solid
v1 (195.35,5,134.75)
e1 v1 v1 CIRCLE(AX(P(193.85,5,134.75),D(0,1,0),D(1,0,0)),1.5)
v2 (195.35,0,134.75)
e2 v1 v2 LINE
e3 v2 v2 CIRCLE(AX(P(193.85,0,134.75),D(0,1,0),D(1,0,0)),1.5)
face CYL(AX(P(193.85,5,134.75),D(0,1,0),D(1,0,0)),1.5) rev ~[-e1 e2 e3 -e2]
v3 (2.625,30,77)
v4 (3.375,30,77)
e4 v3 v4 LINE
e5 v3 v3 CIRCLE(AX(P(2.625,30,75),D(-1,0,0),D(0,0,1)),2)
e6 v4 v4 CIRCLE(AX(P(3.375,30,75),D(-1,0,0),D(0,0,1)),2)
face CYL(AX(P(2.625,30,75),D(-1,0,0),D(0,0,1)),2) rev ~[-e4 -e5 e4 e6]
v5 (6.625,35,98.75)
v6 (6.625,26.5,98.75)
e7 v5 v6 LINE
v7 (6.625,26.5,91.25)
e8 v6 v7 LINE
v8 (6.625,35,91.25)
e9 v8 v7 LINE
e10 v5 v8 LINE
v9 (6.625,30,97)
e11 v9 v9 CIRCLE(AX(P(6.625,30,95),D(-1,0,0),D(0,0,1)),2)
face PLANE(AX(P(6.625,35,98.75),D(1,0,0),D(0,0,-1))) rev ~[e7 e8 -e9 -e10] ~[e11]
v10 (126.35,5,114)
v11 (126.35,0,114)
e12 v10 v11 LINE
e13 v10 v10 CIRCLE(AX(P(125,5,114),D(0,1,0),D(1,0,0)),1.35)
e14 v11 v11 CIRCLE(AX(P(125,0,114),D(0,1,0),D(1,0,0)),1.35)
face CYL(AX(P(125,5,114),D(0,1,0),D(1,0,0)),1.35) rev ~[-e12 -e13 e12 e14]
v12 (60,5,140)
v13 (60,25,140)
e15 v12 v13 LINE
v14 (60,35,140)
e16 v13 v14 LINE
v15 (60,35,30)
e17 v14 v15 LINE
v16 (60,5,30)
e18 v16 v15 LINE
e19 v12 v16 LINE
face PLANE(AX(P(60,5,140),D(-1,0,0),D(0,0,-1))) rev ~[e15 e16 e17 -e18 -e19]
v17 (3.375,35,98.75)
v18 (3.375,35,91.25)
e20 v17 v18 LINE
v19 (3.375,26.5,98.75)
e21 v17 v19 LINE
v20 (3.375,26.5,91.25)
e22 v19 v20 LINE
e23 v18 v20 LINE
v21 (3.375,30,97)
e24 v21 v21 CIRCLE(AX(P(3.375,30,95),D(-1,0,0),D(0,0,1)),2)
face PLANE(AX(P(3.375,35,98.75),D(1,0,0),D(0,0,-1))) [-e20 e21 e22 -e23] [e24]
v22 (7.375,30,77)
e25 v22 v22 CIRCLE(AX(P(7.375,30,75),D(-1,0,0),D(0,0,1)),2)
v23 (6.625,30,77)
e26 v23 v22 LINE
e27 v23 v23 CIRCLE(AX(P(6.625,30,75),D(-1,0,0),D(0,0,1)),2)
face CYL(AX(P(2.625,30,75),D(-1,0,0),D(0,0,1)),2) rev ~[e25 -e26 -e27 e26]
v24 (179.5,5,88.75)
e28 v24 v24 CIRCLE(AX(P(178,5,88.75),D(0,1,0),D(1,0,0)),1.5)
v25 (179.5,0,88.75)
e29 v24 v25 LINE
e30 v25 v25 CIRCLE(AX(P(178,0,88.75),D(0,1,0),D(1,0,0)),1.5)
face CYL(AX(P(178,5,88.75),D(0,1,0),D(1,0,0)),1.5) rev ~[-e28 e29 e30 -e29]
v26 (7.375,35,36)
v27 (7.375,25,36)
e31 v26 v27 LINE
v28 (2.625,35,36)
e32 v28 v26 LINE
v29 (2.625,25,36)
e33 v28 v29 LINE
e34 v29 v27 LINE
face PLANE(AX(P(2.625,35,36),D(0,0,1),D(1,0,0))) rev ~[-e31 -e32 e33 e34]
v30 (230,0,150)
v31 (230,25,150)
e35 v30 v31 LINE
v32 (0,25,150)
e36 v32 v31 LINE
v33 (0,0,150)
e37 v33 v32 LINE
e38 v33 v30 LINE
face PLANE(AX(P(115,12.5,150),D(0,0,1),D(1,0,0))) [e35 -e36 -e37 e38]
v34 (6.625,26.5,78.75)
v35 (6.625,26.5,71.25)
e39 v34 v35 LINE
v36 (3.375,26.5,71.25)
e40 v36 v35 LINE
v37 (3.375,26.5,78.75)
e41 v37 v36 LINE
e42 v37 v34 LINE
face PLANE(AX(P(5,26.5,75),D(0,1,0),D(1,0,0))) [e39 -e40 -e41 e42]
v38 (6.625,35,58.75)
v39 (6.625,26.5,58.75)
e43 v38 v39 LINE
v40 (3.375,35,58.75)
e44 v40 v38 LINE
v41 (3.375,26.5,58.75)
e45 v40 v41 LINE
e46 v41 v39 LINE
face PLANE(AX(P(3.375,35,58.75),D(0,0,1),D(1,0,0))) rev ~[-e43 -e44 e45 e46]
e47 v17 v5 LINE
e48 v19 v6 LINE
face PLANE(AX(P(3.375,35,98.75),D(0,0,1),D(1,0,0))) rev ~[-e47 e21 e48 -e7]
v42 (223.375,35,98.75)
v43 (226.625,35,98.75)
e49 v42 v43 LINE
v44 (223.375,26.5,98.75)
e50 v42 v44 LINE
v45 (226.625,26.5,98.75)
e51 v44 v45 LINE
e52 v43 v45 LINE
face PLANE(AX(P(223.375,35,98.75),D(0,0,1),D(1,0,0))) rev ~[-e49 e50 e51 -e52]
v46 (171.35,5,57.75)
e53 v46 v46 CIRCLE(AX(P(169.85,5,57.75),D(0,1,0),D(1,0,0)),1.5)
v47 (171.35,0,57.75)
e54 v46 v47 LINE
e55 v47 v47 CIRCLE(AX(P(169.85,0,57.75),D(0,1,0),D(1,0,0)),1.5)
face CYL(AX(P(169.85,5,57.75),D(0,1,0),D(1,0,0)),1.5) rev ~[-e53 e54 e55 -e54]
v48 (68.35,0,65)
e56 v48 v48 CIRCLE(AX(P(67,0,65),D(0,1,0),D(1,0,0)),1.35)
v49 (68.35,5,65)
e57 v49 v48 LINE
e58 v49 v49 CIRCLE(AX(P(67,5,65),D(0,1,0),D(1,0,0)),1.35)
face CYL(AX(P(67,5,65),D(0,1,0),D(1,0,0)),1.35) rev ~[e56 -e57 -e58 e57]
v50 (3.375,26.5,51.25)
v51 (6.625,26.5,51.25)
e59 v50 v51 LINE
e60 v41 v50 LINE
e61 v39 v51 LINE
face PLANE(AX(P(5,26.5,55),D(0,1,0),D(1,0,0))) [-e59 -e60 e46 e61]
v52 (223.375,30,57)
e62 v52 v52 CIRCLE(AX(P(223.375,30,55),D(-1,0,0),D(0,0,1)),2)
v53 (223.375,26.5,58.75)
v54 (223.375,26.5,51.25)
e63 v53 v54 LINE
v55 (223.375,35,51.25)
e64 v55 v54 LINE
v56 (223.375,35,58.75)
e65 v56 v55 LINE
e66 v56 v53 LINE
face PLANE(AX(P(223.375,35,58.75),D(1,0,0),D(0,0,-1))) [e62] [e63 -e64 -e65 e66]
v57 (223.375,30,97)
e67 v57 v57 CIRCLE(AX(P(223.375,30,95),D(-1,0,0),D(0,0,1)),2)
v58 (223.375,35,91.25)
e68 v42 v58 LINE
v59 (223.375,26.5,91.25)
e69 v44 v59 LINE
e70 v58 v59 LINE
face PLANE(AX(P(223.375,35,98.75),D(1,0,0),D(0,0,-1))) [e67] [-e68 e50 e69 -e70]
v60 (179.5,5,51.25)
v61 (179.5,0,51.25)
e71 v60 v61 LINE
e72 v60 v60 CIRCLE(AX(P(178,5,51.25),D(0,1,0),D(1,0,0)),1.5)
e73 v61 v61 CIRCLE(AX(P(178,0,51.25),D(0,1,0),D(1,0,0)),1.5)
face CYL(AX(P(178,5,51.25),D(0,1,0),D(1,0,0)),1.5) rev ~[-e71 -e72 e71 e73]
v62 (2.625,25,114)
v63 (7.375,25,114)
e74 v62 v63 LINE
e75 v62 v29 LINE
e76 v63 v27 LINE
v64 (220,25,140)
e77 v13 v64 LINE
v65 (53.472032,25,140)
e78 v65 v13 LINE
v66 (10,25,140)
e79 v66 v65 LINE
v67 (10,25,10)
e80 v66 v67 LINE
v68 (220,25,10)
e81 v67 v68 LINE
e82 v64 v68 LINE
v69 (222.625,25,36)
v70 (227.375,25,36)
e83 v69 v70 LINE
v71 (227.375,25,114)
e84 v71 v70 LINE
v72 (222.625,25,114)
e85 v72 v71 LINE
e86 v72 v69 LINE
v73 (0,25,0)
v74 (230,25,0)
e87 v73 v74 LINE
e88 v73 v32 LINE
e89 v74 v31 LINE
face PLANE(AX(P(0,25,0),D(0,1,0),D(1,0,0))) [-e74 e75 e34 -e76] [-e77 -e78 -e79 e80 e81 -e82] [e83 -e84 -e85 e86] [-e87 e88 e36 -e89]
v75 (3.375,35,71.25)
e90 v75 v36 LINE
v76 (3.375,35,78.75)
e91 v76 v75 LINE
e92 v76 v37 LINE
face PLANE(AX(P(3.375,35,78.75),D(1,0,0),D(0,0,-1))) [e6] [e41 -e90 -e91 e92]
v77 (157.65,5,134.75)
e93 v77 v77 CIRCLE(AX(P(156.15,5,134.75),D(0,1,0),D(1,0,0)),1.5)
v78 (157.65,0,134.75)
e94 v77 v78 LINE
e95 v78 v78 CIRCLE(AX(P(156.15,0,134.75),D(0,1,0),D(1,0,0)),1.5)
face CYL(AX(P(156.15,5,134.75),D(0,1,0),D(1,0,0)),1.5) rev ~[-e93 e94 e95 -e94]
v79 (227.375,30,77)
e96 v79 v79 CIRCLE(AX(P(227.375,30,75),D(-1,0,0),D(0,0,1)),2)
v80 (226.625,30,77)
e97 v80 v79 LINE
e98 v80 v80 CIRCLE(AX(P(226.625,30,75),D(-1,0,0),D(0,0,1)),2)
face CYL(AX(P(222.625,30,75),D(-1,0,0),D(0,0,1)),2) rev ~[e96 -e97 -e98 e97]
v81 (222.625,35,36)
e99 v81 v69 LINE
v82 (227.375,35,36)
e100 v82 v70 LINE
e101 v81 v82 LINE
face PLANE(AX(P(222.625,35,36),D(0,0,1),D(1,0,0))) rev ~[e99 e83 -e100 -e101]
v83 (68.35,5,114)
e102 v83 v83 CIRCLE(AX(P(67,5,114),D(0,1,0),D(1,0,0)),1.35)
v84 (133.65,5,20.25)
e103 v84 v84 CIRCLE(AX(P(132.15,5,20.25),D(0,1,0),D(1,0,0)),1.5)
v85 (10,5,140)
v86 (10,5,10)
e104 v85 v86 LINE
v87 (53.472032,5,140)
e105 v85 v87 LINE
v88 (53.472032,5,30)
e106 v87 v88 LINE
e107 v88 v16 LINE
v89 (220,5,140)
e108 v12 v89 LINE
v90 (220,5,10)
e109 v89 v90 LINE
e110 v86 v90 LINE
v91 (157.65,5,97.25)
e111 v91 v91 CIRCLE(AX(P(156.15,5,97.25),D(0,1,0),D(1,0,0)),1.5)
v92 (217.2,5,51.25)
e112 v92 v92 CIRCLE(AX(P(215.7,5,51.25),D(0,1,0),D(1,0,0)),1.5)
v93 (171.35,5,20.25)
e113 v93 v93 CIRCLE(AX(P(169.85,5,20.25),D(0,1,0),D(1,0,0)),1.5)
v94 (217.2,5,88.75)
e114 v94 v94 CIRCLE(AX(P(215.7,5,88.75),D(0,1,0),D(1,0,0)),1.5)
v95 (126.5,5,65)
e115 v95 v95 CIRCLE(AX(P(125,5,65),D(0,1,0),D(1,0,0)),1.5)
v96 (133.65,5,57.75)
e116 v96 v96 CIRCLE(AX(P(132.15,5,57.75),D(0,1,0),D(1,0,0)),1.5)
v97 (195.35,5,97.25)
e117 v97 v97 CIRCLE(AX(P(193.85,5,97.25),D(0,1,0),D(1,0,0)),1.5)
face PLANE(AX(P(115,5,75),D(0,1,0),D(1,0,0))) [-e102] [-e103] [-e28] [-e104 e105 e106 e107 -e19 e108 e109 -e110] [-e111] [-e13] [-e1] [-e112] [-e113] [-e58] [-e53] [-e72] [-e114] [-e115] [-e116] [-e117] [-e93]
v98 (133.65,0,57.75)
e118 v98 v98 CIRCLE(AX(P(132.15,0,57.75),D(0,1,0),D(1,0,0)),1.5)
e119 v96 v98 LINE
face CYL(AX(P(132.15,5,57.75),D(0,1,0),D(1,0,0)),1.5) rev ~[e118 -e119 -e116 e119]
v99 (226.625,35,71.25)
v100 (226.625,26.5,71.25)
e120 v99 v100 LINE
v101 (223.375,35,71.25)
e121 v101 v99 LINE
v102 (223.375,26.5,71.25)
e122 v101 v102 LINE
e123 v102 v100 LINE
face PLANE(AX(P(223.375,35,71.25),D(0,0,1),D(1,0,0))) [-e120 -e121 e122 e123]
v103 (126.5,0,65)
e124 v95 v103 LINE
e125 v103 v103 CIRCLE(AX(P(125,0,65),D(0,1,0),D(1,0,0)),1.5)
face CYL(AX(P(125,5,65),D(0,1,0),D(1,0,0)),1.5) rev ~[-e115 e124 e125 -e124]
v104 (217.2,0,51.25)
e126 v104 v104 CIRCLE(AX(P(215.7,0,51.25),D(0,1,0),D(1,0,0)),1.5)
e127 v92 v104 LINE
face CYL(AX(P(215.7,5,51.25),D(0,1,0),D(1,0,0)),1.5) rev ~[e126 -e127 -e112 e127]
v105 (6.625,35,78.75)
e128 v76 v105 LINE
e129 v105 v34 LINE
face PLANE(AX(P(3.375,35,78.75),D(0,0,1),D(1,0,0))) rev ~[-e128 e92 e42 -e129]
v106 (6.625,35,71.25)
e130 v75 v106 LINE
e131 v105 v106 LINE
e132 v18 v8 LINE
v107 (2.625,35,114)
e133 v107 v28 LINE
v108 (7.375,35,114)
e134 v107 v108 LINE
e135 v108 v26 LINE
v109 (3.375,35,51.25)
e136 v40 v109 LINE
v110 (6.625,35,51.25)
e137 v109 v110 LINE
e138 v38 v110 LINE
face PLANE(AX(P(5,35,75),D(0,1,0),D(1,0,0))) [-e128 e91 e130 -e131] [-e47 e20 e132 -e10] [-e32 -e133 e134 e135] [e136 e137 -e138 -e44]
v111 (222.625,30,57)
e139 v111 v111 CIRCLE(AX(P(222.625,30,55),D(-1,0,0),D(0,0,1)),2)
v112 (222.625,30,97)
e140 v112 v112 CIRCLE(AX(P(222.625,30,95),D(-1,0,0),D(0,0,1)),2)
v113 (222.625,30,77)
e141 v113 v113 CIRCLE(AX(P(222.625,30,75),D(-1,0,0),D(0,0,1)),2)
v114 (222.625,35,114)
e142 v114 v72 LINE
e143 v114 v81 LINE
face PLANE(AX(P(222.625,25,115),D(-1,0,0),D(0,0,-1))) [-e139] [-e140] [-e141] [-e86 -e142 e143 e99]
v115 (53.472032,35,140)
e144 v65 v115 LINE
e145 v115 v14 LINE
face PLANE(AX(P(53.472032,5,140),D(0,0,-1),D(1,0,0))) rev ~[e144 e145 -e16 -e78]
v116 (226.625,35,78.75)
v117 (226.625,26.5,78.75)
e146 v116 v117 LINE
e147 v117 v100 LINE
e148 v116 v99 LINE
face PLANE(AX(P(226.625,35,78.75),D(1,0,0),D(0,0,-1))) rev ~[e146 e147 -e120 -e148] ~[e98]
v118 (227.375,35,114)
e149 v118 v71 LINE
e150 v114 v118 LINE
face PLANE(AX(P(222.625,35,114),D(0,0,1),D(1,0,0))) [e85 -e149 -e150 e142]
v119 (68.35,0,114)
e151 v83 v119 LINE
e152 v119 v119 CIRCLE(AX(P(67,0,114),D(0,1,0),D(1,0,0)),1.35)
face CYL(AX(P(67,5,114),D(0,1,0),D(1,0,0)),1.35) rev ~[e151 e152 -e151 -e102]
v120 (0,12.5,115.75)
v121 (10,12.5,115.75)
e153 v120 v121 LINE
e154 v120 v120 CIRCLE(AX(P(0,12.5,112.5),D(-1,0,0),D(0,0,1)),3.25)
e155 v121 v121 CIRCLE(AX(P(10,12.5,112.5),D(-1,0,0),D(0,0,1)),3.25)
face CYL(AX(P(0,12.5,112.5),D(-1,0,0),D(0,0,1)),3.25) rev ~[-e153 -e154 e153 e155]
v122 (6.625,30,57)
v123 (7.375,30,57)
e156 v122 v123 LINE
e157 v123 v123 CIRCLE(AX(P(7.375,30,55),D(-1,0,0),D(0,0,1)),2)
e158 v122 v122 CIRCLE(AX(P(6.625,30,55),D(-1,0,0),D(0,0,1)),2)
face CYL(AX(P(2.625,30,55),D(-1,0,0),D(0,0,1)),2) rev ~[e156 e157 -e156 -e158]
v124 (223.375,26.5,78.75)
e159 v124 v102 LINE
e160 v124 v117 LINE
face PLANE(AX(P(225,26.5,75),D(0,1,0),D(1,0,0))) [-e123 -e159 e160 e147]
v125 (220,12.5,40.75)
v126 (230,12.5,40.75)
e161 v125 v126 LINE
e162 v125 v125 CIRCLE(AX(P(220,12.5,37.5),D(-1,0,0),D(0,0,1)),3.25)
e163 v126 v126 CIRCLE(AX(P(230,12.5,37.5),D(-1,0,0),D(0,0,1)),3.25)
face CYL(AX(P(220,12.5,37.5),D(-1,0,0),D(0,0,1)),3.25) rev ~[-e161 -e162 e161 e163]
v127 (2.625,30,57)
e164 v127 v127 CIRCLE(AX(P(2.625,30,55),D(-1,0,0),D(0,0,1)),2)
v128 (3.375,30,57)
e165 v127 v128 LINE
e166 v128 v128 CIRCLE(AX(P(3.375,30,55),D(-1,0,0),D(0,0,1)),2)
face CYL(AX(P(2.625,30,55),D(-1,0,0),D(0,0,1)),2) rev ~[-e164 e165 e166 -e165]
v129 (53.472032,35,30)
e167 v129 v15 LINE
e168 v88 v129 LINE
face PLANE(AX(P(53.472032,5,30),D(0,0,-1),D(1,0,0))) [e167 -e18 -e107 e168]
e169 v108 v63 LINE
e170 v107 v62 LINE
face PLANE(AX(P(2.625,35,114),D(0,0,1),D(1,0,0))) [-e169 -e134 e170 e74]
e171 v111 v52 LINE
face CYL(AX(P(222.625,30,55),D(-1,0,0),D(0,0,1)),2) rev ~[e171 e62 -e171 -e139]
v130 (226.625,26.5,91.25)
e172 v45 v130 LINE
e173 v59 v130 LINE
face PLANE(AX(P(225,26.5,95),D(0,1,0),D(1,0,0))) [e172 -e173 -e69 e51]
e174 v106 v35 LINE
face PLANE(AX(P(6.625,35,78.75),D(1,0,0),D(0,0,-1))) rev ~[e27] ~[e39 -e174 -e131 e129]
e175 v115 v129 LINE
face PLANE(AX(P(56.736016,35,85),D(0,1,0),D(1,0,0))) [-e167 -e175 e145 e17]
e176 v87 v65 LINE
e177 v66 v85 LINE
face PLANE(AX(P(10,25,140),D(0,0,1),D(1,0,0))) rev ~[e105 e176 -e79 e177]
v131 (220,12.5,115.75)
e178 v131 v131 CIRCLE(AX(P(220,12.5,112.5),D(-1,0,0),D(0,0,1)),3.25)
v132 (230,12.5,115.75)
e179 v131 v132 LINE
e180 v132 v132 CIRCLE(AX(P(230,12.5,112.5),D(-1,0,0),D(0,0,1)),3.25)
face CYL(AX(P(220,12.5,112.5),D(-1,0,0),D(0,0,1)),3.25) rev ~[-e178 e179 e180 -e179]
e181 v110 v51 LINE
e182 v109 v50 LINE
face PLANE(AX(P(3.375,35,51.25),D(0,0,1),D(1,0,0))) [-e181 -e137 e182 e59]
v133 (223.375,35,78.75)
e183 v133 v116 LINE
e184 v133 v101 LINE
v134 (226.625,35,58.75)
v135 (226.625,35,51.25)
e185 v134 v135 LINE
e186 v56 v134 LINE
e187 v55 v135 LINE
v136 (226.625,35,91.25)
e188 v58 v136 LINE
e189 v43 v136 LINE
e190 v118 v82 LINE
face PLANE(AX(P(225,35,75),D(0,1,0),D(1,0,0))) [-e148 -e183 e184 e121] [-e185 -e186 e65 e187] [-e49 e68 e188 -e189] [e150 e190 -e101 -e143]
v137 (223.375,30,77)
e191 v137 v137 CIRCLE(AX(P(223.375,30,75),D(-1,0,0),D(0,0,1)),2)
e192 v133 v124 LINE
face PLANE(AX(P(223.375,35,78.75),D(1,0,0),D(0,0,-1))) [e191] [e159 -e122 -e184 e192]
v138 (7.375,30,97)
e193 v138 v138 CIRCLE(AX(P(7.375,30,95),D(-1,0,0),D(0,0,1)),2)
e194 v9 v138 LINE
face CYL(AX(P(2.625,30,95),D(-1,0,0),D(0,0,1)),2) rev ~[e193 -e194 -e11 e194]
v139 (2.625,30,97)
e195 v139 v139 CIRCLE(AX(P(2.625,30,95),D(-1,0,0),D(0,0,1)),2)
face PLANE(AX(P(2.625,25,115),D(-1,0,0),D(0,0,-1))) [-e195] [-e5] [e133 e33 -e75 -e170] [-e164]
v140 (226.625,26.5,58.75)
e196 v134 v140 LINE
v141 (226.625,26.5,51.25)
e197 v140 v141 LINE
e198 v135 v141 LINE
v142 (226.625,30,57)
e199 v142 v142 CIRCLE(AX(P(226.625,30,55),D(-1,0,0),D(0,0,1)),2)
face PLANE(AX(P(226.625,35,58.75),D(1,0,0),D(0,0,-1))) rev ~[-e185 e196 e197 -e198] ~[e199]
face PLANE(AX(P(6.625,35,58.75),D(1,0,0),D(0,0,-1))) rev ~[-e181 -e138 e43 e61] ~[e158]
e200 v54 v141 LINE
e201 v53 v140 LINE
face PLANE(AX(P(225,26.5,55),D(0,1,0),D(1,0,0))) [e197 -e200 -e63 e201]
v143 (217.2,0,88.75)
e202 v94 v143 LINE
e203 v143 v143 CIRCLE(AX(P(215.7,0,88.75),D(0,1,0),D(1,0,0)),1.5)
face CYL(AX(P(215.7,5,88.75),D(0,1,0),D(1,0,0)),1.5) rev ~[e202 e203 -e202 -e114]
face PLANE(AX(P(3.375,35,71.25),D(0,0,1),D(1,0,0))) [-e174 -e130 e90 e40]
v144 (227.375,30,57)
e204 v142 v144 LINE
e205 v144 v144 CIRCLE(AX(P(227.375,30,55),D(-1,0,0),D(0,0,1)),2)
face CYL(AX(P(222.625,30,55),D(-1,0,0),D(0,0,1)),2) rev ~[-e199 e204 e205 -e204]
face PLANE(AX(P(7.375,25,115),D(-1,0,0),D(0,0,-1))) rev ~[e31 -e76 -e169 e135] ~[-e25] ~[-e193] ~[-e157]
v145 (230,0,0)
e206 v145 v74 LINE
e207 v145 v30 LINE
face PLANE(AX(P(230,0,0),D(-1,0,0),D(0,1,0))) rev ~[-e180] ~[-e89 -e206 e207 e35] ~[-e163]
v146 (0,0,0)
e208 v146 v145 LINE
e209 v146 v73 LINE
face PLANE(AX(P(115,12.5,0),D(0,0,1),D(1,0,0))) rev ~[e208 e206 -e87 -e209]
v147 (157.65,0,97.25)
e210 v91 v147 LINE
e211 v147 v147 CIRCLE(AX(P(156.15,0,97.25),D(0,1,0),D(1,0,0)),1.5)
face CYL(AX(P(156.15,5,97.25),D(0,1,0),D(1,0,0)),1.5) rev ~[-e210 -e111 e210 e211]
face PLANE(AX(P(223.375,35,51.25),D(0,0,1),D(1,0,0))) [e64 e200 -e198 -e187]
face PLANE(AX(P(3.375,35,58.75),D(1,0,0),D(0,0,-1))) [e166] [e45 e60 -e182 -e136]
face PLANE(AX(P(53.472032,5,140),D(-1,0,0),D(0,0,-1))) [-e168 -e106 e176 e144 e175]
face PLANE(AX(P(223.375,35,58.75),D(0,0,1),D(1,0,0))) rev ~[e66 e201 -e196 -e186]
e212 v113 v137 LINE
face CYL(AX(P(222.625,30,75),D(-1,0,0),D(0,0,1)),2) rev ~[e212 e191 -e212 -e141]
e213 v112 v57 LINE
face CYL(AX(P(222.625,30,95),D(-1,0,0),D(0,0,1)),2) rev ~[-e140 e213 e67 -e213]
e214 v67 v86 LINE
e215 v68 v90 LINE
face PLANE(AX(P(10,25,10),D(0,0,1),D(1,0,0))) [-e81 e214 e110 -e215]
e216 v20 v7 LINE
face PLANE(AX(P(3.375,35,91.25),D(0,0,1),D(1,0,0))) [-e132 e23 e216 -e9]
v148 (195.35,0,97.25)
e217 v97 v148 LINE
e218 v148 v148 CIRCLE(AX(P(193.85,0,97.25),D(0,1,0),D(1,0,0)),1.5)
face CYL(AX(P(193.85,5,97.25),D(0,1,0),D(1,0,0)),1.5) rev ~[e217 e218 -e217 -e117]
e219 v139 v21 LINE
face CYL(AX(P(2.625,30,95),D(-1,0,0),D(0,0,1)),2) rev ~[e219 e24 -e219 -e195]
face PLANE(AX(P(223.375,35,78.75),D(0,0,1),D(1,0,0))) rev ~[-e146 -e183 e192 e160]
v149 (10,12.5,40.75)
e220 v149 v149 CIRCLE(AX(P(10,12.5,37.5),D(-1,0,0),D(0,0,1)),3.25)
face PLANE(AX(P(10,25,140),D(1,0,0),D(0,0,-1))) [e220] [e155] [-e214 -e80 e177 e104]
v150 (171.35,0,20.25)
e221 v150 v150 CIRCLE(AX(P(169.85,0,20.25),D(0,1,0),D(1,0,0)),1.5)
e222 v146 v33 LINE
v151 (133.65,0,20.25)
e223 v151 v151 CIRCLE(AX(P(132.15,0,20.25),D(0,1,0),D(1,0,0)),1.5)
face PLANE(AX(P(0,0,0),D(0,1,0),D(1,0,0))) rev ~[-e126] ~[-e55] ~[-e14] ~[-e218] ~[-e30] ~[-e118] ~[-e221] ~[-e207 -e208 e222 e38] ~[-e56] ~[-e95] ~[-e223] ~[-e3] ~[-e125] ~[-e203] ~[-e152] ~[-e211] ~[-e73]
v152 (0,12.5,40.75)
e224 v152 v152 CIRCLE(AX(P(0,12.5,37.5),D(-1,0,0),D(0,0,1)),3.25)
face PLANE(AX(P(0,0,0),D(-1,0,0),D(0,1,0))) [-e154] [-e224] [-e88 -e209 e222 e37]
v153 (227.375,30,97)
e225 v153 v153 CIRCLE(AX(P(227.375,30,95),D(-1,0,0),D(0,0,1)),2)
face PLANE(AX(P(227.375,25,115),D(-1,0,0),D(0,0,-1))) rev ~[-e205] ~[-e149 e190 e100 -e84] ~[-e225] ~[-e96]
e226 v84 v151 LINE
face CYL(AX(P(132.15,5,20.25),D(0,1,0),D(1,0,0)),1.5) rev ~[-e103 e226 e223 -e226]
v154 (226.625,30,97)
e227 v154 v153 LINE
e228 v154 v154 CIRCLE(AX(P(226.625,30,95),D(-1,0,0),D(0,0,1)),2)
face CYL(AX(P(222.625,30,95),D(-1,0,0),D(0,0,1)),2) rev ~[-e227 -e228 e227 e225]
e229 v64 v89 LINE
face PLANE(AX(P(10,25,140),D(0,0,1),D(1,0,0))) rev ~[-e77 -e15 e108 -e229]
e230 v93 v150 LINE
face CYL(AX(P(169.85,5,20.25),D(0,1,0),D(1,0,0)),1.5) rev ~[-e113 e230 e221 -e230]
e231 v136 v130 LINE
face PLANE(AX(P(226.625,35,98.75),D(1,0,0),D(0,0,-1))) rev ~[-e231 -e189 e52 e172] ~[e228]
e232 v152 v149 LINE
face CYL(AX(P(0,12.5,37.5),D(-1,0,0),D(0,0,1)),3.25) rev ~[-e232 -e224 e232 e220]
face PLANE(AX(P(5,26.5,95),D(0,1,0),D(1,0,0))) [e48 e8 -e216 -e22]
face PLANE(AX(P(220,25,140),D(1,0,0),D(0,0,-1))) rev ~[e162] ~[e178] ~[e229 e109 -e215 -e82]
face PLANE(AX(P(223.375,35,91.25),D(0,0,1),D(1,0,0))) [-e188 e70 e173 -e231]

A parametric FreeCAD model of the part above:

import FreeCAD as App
import Part
import Sketcher

V = App.Vector
Q = App.Units.Quantity


def add_polygon(sketch, points):
    """Adds a closed chain of lines whose ends are joined by coincident constraints."""
    first, n = sketch.GeometryCount, len(points)
    for a, b in zip(points, points[1:] + points[:1]):
        sketch.addGeometry(Part.LineSegment(App.Vector(*a, 0), App.Vector(*b, 0)), False)
    for i in range(n):
        sketch.addConstraint(Sketcher.Constraint("Coincident", first + i, 2, first + (i + 1) % n, 1))

doc = App.newDocument("Part")
body = doc.addObject("PartDesign::Body", "Body")

# Sketch on XY plane
sketch1 = body.newObject("Sketcher::SketchObject", "Sketch")
sketch1.AttachmentSupport = (doc.getObject("XY_Plane"), [""])
sketch1.MapMode = "FlatFace"
add_polygon(sketch1, [(0, 25), (0, 0), (230, 0), (230, 25)])  # lines 0-3
sketch1.addConstraint([
    Sketcher.Constraint("Vertical", 0),
    Sketcher.Constraint("Horizontal", 1),
    Sketcher.Constraint("Vertical", 2),
    Sketcher.Constraint("Horizontal", 3),
    Sketcher.Constraint("Coincident", 0, 2, -1, 1),
    Sketcher.Constraint("DistanceX", 1, 1, 1, 2, Q("230 mm")),
    Sketcher.Constraint("DistanceY", 0, 2, 0, 1, Q("25 mm")),
])
pad1 = body.newObject("PartDesign::Pad", "Pad")
pad1.Profile = sketch1
pad1.Length = 150

# Sketch on XZ plane
sketch2 = body.newObject("Sketcher::SketchObject", "Sketch001")
sketch2.AttachmentSupport = (doc.getObject("XZ_Plane"), [""])
sketch2.MapMode = "FlatFace"
sketch2.AttachmentOffset = App.Placement(V(0, 0, -25), App.Rotation())
add_polygon(sketch2, [(10, 10), (10, 140), (220, 140), (220, 10)])  # lines 0-3
sketch2.addConstraint([
    Sketcher.Constraint("Vertical", 0),
    Sketcher.Constraint("Horizontal", 1),
    Sketcher.Constraint("Vertical", 2),
    Sketcher.Constraint("Horizontal", 3),
    Sketcher.Constraint("DistanceX", 1, 1, 1, 2, Q("210 mm")),
    Sketcher.Constraint("DistanceY", 0, 1, 0, 2, Q("130 mm")),
    Sketcher.Constraint("DistanceX", -1, 1, 0, 2, Q("10 mm")),
    Sketcher.Constraint("DistanceY", -1, 1, 0, 2, Q("140 mm")),
])
pocket1 = body.newObject("PartDesign::Pocket", "Pocket")
pocket1.Profile = sketch2
pocket1.Length = 20
pocket1.Reversed = True

# Sketch on XZ plane
sketch3 = body.newObject("Sketcher::SketchObject", "Sketch002")
sketch3.AttachmentSupport = (doc.getObject("XZ_Plane"), [""])
sketch3.MapMode = "FlatFace"
sketch3.AttachmentOffset = App.Placement(V(0, 0, -5), App.Rotation())
add_polygon(sketch3, [(53.472032, 30), (53.472032, 140), (60, 140), (60, 30)])  # lines 0-3
sketch3.addConstraint([
    Sketcher.Constraint("Vertical", 0),
    Sketcher.Constraint("Horizontal", 1),
    Sketcher.Constraint("Vertical", 2),
    Sketcher.Constraint("Horizontal", 3),
    Sketcher.Constraint("DistanceY", 0, 1, 0, 2, Q("110 mm")),
    Sketcher.Constraint("DistanceY", -1, 1, 0, 2, Q("140 mm")),
    Sketcher.Constraint("DistanceX", -1, 1, 1, 2, Q("60 mm")),
    Sketcher.Constraint("DistanceX", 1, 1, 1, 2, Q("6.527968 mm")),
])
pad2 = body.newObject("PartDesign::Pad", "Pad001")
pad2.Profile = sketch3
pad2.Length = 30
pad2.Reversed = True

# Sketch on XZ plane
sketch4 = body.newObject("Sketcher::SketchObject", "Sketch003")
sketch4.AttachmentSupport = (doc.getObject("XZ_Plane"), [""])
sketch4.MapMode = "FlatFace"
sketch4.AttachmentOffset = App.Placement(V(0, 0, -5), App.Rotation())
sketch4.addGeometry(Part.Circle(V(67, 65, 0), V(0, 0, 1), 1.35), False)
sketch4.addConstraint([
    Sketcher.Constraint("Diameter", 0, Q("2.7 mm")),
    Sketcher.Constraint("DistanceX", -1, 1, 0, 3, Q("67 mm")),
    Sketcher.Constraint("DistanceY", -1, 1, 0, 3, Q("65 mm")),
])
pocket2 = body.newObject("PartDesign::Pocket", "Pocket001")
pocket2.Profile = sketch4
pocket2.Type = "UpToFirst"
pocket2.Reversed = True

# Sketch on XZ plane
sketch5 = body.newObject("Sketcher::SketchObject", "Sketch004")
sketch5.AttachmentSupport = (doc.getObject("XZ_Plane"), [""])
sketch5.MapMode = "FlatFace"
sketch5.AttachmentOffset = App.Placement(V(0, 0, -5), App.Rotation())
sketch5.addGeometry(Part.Circle(V(67, 114, 0), V(0, 0, 1), 1.35), False)
sketch5.addConstraint([
    Sketcher.Constraint("Diameter", 0, Q("2.7 mm")),
    Sketcher.Constraint("DistanceX", -1, 1, 0, 3, Q("67 mm")),
    Sketcher.Constraint("DistanceY", -1, 1, 0, 3, Q("114 mm")),
])
pocket3 = body.newObject("PartDesign::Pocket", "Pocket002")
pocket3.Profile = sketch5
pocket3.Type = "UpToFirst"
pocket3.Reversed = True

# Sketch on XZ plane
sketch6 = body.newObject("Sketcher::SketchObject", "Sketch005")
sketch6.AttachmentSupport = (doc.getObject("XZ_Plane"), [""])
sketch6.MapMode = "FlatFace"
sketch6.AttachmentOffset = App.Placement(V(0, 0, -5), App.Rotation())
sketch6.addGeometry(Part.Circle(V(125, 65, 0), V(0, 0, 1), 1.5), False)
sketch6.addConstraint([
    Sketcher.Constraint("Diameter", 0, Q("3 mm")),
    Sketcher.Constraint("DistanceX", -1, 1, 0, 3, Q("125 mm")),
    Sketcher.Constraint("DistanceY", -1, 1, 0, 3, Q("65 mm")),
])
pocket4 = body.newObject("PartDesign::Pocket", "Pocket003")
pocket4.Profile = sketch6
pocket4.Type = "UpToFirst"
pocket4.Reversed = True

# Sketch on XZ plane
sketch7 = body.newObject("Sketcher::SketchObject", "Sketch006")
sketch7.AttachmentSupport = (doc.getObject("XZ_Plane"), [""])
sketch7.MapMode = "FlatFace"
sketch7.AttachmentOffset = App.Placement(V(0, 0, -5), App.Rotation())
sketch7.addGeometry(Part.Circle(V(125, 114, 0), V(0, 0, 1), 1.35), False)
sketch7.addConstraint([
    Sketcher.Constraint("Diameter", 0, Q("2.7 mm")),
    Sketcher.Constraint("DistanceX", -1, 1, 0, 3, Q("125 mm")),
    Sketcher.Constraint("DistanceY", -1, 1, 0, 3, Q("114 mm")),
])
pocket5 = body.newObject("PartDesign::Pocket", "Pocket004")
pocket5.Profile = sketch7
pocket5.Type = "UpToFirst"
pocket5.Reversed = True

# Sketch on XZ plane
sketch8 = body.newObject("Sketcher::SketchObject", "Sketch007")
sketch8.AttachmentSupport = (doc.getObject("XZ_Plane"), [""])
sketch8.MapMode = "FlatFace"
sketch8.AttachmentOffset = App.Placement(V(0, 0, -5), App.Rotation())
sketch8.addGeometry([
    Part.Circle(V(132.15, 20.25, 0), V(0, 0, 1), 1.5),  # 0
    Part.Circle(V(169.85, 20.25, 0), V(0, 0, 1), 1.5),  # 1
    Part.Circle(V(169.85, 57.75, 0), V(0, 0, 1), 1.5),  # 2
    Part.Circle(V(132.15, 57.75, 0), V(0, 0, 1), 1.5),  # 3
    Part.Circle(V(178, 51.25, 0), V(0, 0, 1), 1.5),  # 4
    Part.Circle(V(215.7, 51.25, 0), V(0, 0, 1), 1.5),  # 5
    Part.Circle(V(215.7, 88.75, 0), V(0, 0, 1), 1.5),  # 6
    Part.Circle(V(178, 88.75, 0), V(0, 0, 1), 1.5),  # 7
    Part.Circle(V(156.15, 97.25, 0), V(0, 0, 1), 1.5),  # 8
    Part.Circle(V(193.85, 97.25, 0), V(0, 0, 1), 1.5),  # 9
    Part.Circle(V(193.85, 134.75, 0), V(0, 0, 1), 1.5),  # 10
    Part.Circle(V(156.15, 134.75, 0), V(0, 0, 1), 1.5),  # 11
], False)
sketch8.addConstraint([
    Sketcher.Constraint("Equal", 0, 1),
    Sketcher.Constraint("Equal", 1, 2),
    Sketcher.Constraint("Equal", 2, 3),
    Sketcher.Constraint("Equal", 3, 4),
    Sketcher.Constraint("Equal", 4, 5),
    Sketcher.Constraint("Equal", 5, 6),
    Sketcher.Constraint("Equal", 6, 7),
    Sketcher.Constraint("Equal", 7, 8),
    Sketcher.Constraint("Equal", 8, 9),
    Sketcher.Constraint("Equal", 9, 10),
    Sketcher.Constraint("Equal", 10, 11),
    Sketcher.Constraint("Horizontal", 0, 3, 1, 3),
    Sketcher.Constraint("Horizontal", 2, 3, 3, 3),
    Sketcher.Constraint("Horizontal", 4, 3, 5, 3),
    Sketcher.Constraint("Horizontal", 6, 3, 7, 3),
    Sketcher.Constraint("Horizontal", 8, 3, 9, 3),
    Sketcher.Constraint("Horizontal", 10, 3, 11, 3),
    Sketcher.Constraint("Vertical", 1, 3, 2, 3),
    Sketcher.Constraint("Vertical", 0, 3, 3, 3),
    Sketcher.Constraint("Vertical", 5, 3, 6, 3),
    Sketcher.Constraint("Vertical", 4, 3, 7, 3),
    Sketcher.Constraint("Vertical", 9, 3, 10, 3),
    Sketcher.Constraint("Vertical", 8, 3, 11, 3),
    Sketcher.Constraint("Diameter", 0, Q("3 mm")),
    Sketcher.Constraint("DistanceX", -1, 1, 4, 3, Q("178 mm")),
    Sketcher.Constraint("DistanceY", 1, 3, 4, 3, Q("31 mm")),
    Sketcher.Constraint("DistanceY", 2, 3, 6, 3, Q("31 mm")),
    Sketcher.Constraint("DistanceX", 3, 3, 8, 3, Q("24 mm")),
    Sketcher.Constraint("DistanceY", 4, 3, 8, 3, Q("46 mm")),
    Sketcher.Constraint("DistanceX", 2, 3, 9, 3, Q("24 mm")),
    Sketcher.Constraint("DistanceY", 7, 3, 10, 3, Q("46 mm")),
    Sketcher.Constraint("DistanceX", -1, 1, 5, 3, Q("215.7 mm")),
    Sketcher.Constraint("DistanceX", 0, 3, 1, 3, Q("37.7 mm")),
    Sketcher.Constraint("DistanceY", 1, 3, 2, 3, Q("37.5 mm")),
    Sketcher.Constraint("DistanceX", -1, 1, 0, 3, Q("132.15 mm")),
    Sketcher.Constraint("DistanceY", -1, 1, 0, 3, Q("20.25 mm")),
])
pocket6 = body.newObject("PartDesign::Pocket", "Pocket005")
pocket6.Profile = sketch8
pocket6.Type = "ThroughAll"
pocket6.Reversed = True

# Sketch on YZ plane
sketch9 = body.newObject("Sketcher::SketchObject", "Sketch008")
sketch9.AttachmentSupport = (doc.getObject("YZ_Plane"), [""])
sketch9.MapMode = "FlatFace"
sketch9.addGeometry(Part.Circle(V(12.5, 37.5, 0), V(0, 0, 1), 3.25), False)
sketch9.addConstraint([
    Sketcher.Constraint("Diameter", 0, Q("6.5 mm")),
    Sketcher.Constraint("DistanceX", -1, 1, 0, 3, Q("12.5 mm")),
    Sketcher.Constraint("DistanceY", -1, 1, 0, 3, Q("37.5 mm")),
])
pocket7 = body.newObject("PartDesign::Pocket", "Pocket006")
pocket7.Profile = sketch9
pocket7.Type = "UpToFirst"
pocket7.Reversed = True

# Sketch on YZ plane
sketch10 = body.newObject("Sketcher::SketchObject", "Sketch009")
sketch10.AttachmentSupport = (doc.getObject("YZ_Plane"), [""])
sketch10.MapMode = "FlatFace"
sketch10.addGeometry(Part.Circle(V(12.5, 112.5, 0), V(0, 0, 1), 3.25), False)
sketch10.addConstraint([
    Sketcher.Constraint("Diameter", 0, Q("6.5 mm")),
    Sketcher.Constraint("DistanceX", -1, 1, 0, 3, Q("12.5 mm")),
    Sketcher.Constraint("DistanceY", -1, 1, 0, 3, Q("112.5 mm")),
])
pocket8 = body.newObject("PartDesign::Pocket", "Pocket007")
pocket8.Profile = sketch10
pocket8.Type = "UpToFirst"
pocket8.Reversed = True

# Sketch on YZ plane
sketch11 = body.newObject("Sketcher::SketchObject", "Sketch010")
sketch11.AttachmentSupport = (doc.getObject("YZ_Plane"), [""])
sketch11.MapMode = "FlatFace"
sketch11.AttachmentOffset = App.Placement(V(0, 0, 220), App.Rotation())
sketch11.addGeometry(Part.Circle(V(12.5, 112.5, 0), V(0, 0, 1), 3.25), False)
sketch11.addConstraint([
    Sketcher.Constraint("Diameter", 0, Q("6.5 mm")),
    Sketcher.Constraint("DistanceX", -1, 1, 0, 3, Q("12.5 mm")),
    Sketcher.Constraint("DistanceY", -1, 1, 0, 3, Q("112.5 mm")),
])
pocket9 = body.newObject("PartDesign::Pocket", "Pocket008")
pocket9.Profile = sketch11
pocket9.Type = "UpToFirst"
pocket9.Reversed = True

# Sketch on YZ plane
sketch12 = body.newObject("Sketcher::SketchObject", "Sketch011")
sketch12.AttachmentSupport = (doc.getObject("YZ_Plane"), [""])
sketch12.MapMode = "FlatFace"
sketch12.AttachmentOffset = App.Placement(V(0, 0, 220), App.Rotation())
sketch12.addGeometry(Part.Circle(V(12.5, 37.5, 0), V(0, 0, 1), 3.25), False)
sketch12.addConstraint([
    Sketcher.Constraint("Diameter", 0, Q("6.5 mm")),
    Sketcher.Constraint("DistanceX", -1, 1, 0, 3, Q("12.5 mm")),
    Sketcher.Constraint("DistanceY", -1, 1, 0, 3, Q("37.5 mm")),
])
pocket10 = body.newObject("PartDesign::Pocket", "Pocket009")
pocket10.Profile = sketch12
pocket10.Type = "UpToFirst"
pocket10.Reversed = True

# Sketch on XZ plane
sketch13 = body.newObject("Sketcher::SketchObject", "Sketch012")
sketch13.AttachmentSupport = (doc.getObject("XZ_Plane"), [""])
sketch13.MapMode = "FlatFace"
sketch13.AttachmentOffset = App.Placement(V(0, 0, -25), App.Rotation())
add_polygon(sketch13, [(2.625, 35), (2.625, 115), (7.375, 115), (7.375, 35)])  # lines 0-3
add_polygon(sketch13, [(222.625, 35), (222.625, 115), (227.375, 115), (227.375, 35)])  # lines 4-7
sketch13.addConstraint([
    Sketcher.Constraint("Vertical", 0),
    Sketcher.Constraint("Horizontal", 1),
    Sketcher.Constraint("Vertical", 2),
    Sketcher.Constraint("Horizontal", 3),
    Sketcher.Constraint("Vertical", 4),
    Sketcher.Constraint("Horizontal", 5),
    Sketcher.Constraint("Vertical", 6),
    Sketcher.Constraint("Horizontal", 7),
    Sketcher.Constraint("Horizontal", 1, 2, 4, 2),
    Sketcher.Constraint("Horizontal", 3, 2, 6, 2),
    Sketcher.Constraint("Equal", 3, 5),
    Sketcher.Constraint("DistanceY", 0, 1, 0, 2, Q("80 mm")),
    Sketcher.Constraint("DistanceY", -1, 1, 0, 2, Q("115 mm")),
    Sketcher.Constraint("DistanceX", 0, 2, 4, 2, Q("220 mm")),
    Sketcher.Constraint("DistanceX", 1, 1, 1, 2, Q("4.75 mm")),
    Sketcher.Constraint("DistanceX", -1, 1, 0, 2, Q("2.625 mm")),
])
pad3 = body.newObject("PartDesign::Pad", "Pad002")
pad3.Profile = sketch13
pad3.Length = 10
pad3.Reversed = True

# Sketch on YZ plane
sketch14 = body.newObject("Sketcher::SketchObject", "Sketch013")
sketch14.AttachmentSupport = (doc.getObject("YZ_Plane"), [""])
sketch14.MapMode = "FlatFace"
sketch14.AttachmentOffset = App.Placement(V(0, 0, 2.625), App.Rotation())
sketch14.addGeometry([
    Part.Circle(V(30, 55, 0), V(0, 0, 1), 2),
    Part.Circle(V(30, 75, 0), V(0, 0, 1), 2),
    Part.Circle(V(30, 95, 0), V(0, 0, 1), 2),
], False)
sketch14.addConstraint([
    Sketcher.Constraint("Equal", 0, 1),
    Sketcher.Constraint("Equal", 1, 2),
    Sketcher.Constraint("Vertical", 0, 3, 1, 3),
    Sketcher.Constraint("Vertical", 1, 3, 2, 3),
    Sketcher.Constraint("Diameter", 0, Q("4 mm")),
    Sketcher.Constraint("DistanceX", -1, 1, 0, 3, Q("30 mm")),
    Sketcher.Constraint("DistanceY", -1, 1, 0, 3, Q("55 mm")),
    Sketcher.Constraint("DistanceY", -1, 1, 1, 3, Q("75 mm")),
    Sketcher.Constraint("DistanceY", -1, 1, 2, 3, Q("95 mm")),
])
pocket11 = body.newObject("PartDesign::Pocket", "Pocket010")
pocket11.Profile = sketch14
pocket11.Length = 10
pocket11.Reversed = True

# Sketch on YZ plane
sketch15 = body.newObject("Sketcher::SketchObject", "Sketch014")
sketch15.AttachmentSupport = (doc.getObject("YZ_Plane"), [""])
sketch15.MapMode = "FlatFace"
sketch15.AttachmentOffset = App.Placement(V(0, 0, 222.625), App.Rotation())
sketch15.addGeometry([
    Part.Circle(V(30, 95, 0), V(0, 0, 1), 2),
    Part.Circle(V(30, 75, 0), V(0, 0, 1), 2),
    Part.Circle(V(30, 55, 0), V(0, 0, 1), 2),
], False)
sketch15.addConstraint([
    Sketcher.Constraint("Equal", 0, 1),
    Sketcher.Constraint("Equal", 1, 2),
    Sketcher.Constraint("Vertical", 0, 3, 1, 3),
    Sketcher.Constraint("Vertical", 1, 3, 2, 3),
    Sketcher.Constraint("Diameter", 0, Q("4 mm")),
    Sketcher.Constraint("DistanceX", -1, 1, 0, 3, Q("30 mm")),
    Sketcher.Constraint("DistanceY", -1, 1, 0, 3, Q("95 mm")),
    Sketcher.Constraint("DistanceY", -1, 1, 1, 3, Q("75 mm")),
    Sketcher.Constraint("DistanceY", -1, 1, 2, 3, Q("55 mm")),
])
pocket12 = body.newObject("PartDesign::Pocket", "Pocket011")
pocket12.Profile = sketch15
pocket12.Length = 10
pocket12.Reversed = True

# Sketch on XZ plane
sketch16 = body.newObject("Sketcher::SketchObject", "Sketch015")
sketch16.AttachmentSupport = (doc.getObject("XZ_Plane"), [""])
sketch16.MapMode = "FlatFace"
sketch16.AttachmentOffset = App.Placement(V(0, 0, -35), App.Rotation())
add_polygon(sketch16, [(3.375, 71.25), (3.375, 78.75), (6.625, 78.75), (6.625, 71.25)])  # lines 0-3
add_polygon(sketch16, [(3.375, 91.25), (3.375, 98.75), (6.625, 98.75), (6.625, 91.25)])  # lines 4-7
add_polygon(sketch16, [(3.375, 51.25), (3.375, 58.75), (6.625, 58.75), (6.625, 51.25)])  # lines 8-11
add_polygon(sketch16, [(223.375, 91.25), (223.375, 98.75), (226.625, 98.75), (226.625, 91.25)])  # lines 12-15
add_polygon(sketch16, [(223.375, 71.25), (223.375, 78.75), (226.625, 78.75), (226.625, 71.25)])  # lines 16-19
add_polygon(sketch16, [(223.375, 51.25), (223.375, 58.75), (226.625, 58.75), (226.625, 51.25)])  # lines 20-23
sketch16.addConstraint([
    Sketcher.Constraint("Vertical", 0),
    Sketcher.Constraint("Horizontal", 1),
    Sketcher.Constraint("Vertical", 2),
    Sketcher.Constraint("Horizontal", 3),
    Sketcher.Constraint("Vertical", 4),
    Sketcher.Constraint("Horizontal", 5),
    Sketcher.Constraint("Vertical", 6),
    Sketcher.Constraint("Horizontal", 7),
    Sketcher.Constraint("Vertical", 8),
    Sketcher.Constraint("Horizontal", 9),
    Sketcher.Constraint("Vertical", 10),
    Sketcher.Constraint("Horizontal", 11),
    Sketcher.Constraint("Vertical", 12),
    Sketcher.Constraint("Horizontal", 13),
    Sketcher.Constraint("Vertical", 14),
    Sketcher.Constraint("Horizontal", 15),
    Sketcher.Constraint("Vertical", 16),
    Sketcher.Constraint("Horizontal", 17),
    Sketcher.Constraint("Vertical", 18),
    Sketcher.Constraint("Horizontal", 19),
    Sketcher.Constraint("Vertical", 20),
    Sketcher.Constraint("Horizontal", 21),
    Sketcher.Constraint("Vertical", 22),
    Sketcher.Constraint("Horizontal", 23),
    Sketcher.Constraint("Horizontal", 5, 2, 12, 2),
    Sketcher.Constraint("Horizontal", 7, 2, 14, 2),
    Sketcher.Constraint("Horizontal", 1, 2, 16, 2),
    Sketcher.Constraint("Horizontal", 3, 2, 18, 2),
    Sketcher.Constraint("Horizontal", 9, 2, 20, 2),
    Sketcher.Constraint("Horizontal", 11, 2, 22, 2),
    Sketcher.Constraint("Vertical", 3, 2, 4, 2),
    Sketcher.Constraint("Vertical", 2, 2, 5, 2),
    Sketcher.Constraint("Vertical", 7, 2, 8, 2),
    Sketcher.Constraint("Vertical", 6, 2, 9, 2),
    Sketcher.Constraint("Vertical", 15, 2, 16, 2),
    Sketcher.Constraint("Vertical", 14, 2, 17, 2),
    Sketcher.Constraint("Vertical", 19, 2, 20, 2),
    Sketcher.Constraint("Vertical", 18, 2, 21, 2),
    Sketcher.Constraint("Equal", 11, 13),
    Sketcher.Constraint("Equal", 2, 4),
    Sketcher.Constraint("Equal", 6, 8),
    Sketcher.Constraint("DistanceY", 0, 1, 0, 2, Q("7.5 mm")),
    Sketcher.Constraint("DistanceY", 0, 2, 4, 2, Q("20 mm")),
    Sketcher.Constraint("DistanceY", 8, 2, 0, 2, Q("20 mm")),
    Sketcher.Constraint("DistanceX", 4, 2, 12, 2, Q("220 mm")),
    Sketcher.Constraint("DistanceX", 1, 1, 1, 2, Q("3.25 mm")),
    Sketcher.Constraint("DistanceY", -1, 1, 0, 2, Q("78.75 mm")),
    Sketcher.Constraint("DistanceX", -1, 1, 0, 2, Q("3.375 mm")),
])
pocket13 = body.newObject("PartDesign::Pocket", "Pocket012")
pocket13.Profile = sketch16
pocket13.Length = 8.5
pocket13.Reversed = True

# Sketch on XZ plane
sketch17 = body.newObject("Sketcher::SketchObject", "Sketch016")
sketch17.AttachmentSupport = (doc.getObject("XZ_Plane"), [""])
sketch17.MapMode = "FlatFace"
sketch17.AttachmentOffset = App.Placement(V(0, 0, -35), App.Rotation())
add_polygon(sketch17, [(222.625, 35), (222.625, 36), (227.375, 36), (227.375, 35)])  # lines 0-3
add_polygon(sketch17, [(222.625, 114), (222.625, 115), (227.375, 115), (227.375, 114)])  # lines 4-7
add_polygon(sketch17, [(2.625, 35), (2.625, 36), (7.375, 36), (7.375, 35)])  # lines 8-11
add_polygon(sketch17, [(2.625, 114), (2.625, 115), (7.375, 115), (7.375, 114)])  # lines 12-15
sketch17.addConstraint([
    Sketcher.Constraint("Vertical", 0),
    Sketcher.Constraint("Horizontal", 1),
    Sketcher.Constraint("Vertical", 2),
    Sketcher.Constraint("Horizontal", 3),
    Sketcher.Constraint("Vertical", 4),
    Sketcher.Constraint("Horizontal", 5),
    Sketcher.Constraint("Vertical", 6),
    Sketcher.Constraint("Horizontal", 7),
    Sketcher.Constraint("Vertical", 8),
    Sketcher.Constraint("Horizontal", 9),
    Sketcher.Constraint("Vertical", 10),
    Sketcher.Constraint("Horizontal", 11),
    Sketcher.Constraint("Vertical", 12),
    Sketcher.Constraint("Horizontal", 13),
    Sketcher.Constraint("Vertical", 14),
    Sketcher.Constraint("Horizontal", 15),
    Sketcher.Constraint("Horizontal", 1, 2, 8, 2),
    Sketcher.Constraint("Horizontal", 3, 2, 10, 2),
    Sketcher.Constraint("Horizontal", 5, 2, 12, 2),
    Sketcher.Constraint("Horizontal", 7, 2, 14, 2),
    Sketcher.Constraint("Vertical", 3, 2, 4, 2),
    Sketcher.Constraint("Vertical", 2, 2, 5, 2),
    Sketcher.Constraint("Vertical", 11, 2, 12, 2),
    Sketcher.Constraint("Vertical", 10, 2, 13, 2),
    Sketcher.Constraint("Equal", 7, 9),
    Sketcher.Constraint("Equal", 2, 4),
    Sketcher.Constraint("DistanceY", 0, 1, 0, 2, Q("1 mm")),
    Sketcher.Constraint("DistanceY", -1, 1, 0, 2, Q("36 mm")),
    Sketcher.Constraint("DistanceY", -1, 1, 4, 2, Q("115 mm")),
    Sketcher.Constraint("DistanceX", 8, 2, 0, 2, Q("220 mm")),
    Sketcher.Constraint("DistanceX", 1, 1, 1, 2, Q("4.75 mm")),
    Sketcher.Constraint("DistanceX", -1, 1, 0, 2, Q("222.625 mm")),
])
pocket14 = body.newObject("PartDesign::Pocket", "Pocket013")
pocket14.Profile = sketch17
pocket14.Length = 10
pocket14.Reversed = True

doc.recompute()
